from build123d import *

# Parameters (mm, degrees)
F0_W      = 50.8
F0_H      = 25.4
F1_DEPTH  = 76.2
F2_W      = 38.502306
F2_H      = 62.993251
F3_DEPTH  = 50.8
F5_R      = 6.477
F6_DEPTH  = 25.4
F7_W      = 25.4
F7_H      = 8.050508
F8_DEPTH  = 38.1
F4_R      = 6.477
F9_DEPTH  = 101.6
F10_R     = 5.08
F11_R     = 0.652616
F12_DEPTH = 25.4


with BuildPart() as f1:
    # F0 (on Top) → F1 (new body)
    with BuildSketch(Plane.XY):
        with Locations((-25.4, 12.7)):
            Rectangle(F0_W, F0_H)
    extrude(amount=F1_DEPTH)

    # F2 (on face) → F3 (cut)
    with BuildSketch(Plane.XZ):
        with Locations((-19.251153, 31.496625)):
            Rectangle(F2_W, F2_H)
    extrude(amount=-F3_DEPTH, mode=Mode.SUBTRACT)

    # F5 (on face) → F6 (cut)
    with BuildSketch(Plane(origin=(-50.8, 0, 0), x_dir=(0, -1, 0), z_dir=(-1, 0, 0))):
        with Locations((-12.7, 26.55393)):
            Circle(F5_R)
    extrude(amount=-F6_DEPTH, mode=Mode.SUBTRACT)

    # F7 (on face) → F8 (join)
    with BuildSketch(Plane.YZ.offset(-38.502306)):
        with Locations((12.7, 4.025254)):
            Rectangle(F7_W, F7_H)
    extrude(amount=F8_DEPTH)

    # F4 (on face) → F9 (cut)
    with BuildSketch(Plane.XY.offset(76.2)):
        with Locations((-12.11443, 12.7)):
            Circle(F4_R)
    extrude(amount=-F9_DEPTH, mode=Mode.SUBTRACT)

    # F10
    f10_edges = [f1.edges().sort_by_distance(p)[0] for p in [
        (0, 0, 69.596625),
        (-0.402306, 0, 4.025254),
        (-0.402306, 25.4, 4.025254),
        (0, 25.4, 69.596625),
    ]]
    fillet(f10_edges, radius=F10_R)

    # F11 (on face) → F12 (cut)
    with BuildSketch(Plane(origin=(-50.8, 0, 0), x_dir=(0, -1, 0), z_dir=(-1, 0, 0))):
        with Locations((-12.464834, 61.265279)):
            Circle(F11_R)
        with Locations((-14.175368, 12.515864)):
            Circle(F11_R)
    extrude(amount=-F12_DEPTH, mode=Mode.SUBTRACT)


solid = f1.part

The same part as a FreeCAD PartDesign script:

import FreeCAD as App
import Part
import Sketcher
from FreeCAD import Vector
Q = App.Units.Quantity


def edges_at(feature, points):
    """Names of the edges that pass closest to the given points."""
    edges = feature.Shape.Edges
    near = lambda p: min(range(len(edges)), key=lambda i: edges[i].distToShape(Part.Vertex(*p))[0])
    return sorted({f"Edge{near(p) + 1}" for p in points})

doc = App.newDocument("Part")
params = doc.addObject("Spreadsheet::Sheet", "Params")
for row, (alias, value) in enumerate([
    ("sketch1_width", "2 in"),
    ("sketch1_height", "1 in"),
    ("pad1_length", "3 in"),
    ("pocket1_length", "2 in"),
    ("sketch3_diameter", "0.51 in"),
    ("pocket2_length", "1 in"),
    ("sketch4_width", "1 in"),
    ("pad2_length", "1.5 in"),
    ("sketch5_diameter", "0.51 in"),
    ("pocket3_length", "4 in"),
    ("fillet_radius", "0.2 in"),
    ("pocket4_length", "1 in"),
], start=1):
    params.set(f"A{row}", alias)
    params.set(f"B{row}", "=" + value)
    params.setAlias(f"B{row}", alias)

body = doc.addObject("PartDesign::Body", "Body")

# Sketch on XY plane
sketch1 = body.newObject("Sketcher::SketchObject", "Sketch")
sketch1.AttachmentSupport = (doc.getObject("XY_Plane"), [""])
sketch1.MapMode = "FlatFace"
sketch1.addGeometry(Part.LineSegment(Vector(-51, 25, 0), Vector(-51, 0, 0)), False)
sketch1.addGeometry(Part.LineSegment(Vector(-51, 0, 0), Vector(0, 0, 0)), False)
sketch1.addGeometry(Part.LineSegment(Vector(0, 0, 0), Vector(0, 25, 0)), False)
sketch1.addGeometry(Part.LineSegment(Vector(0, 25, 0), Vector(-51, 25, 0)), False)
sketch1.addConstraint(Sketcher.Constraint("Coincident", 0, 2, 1, 1))
sketch1.addConstraint(Sketcher.Constraint("Coincident", 1, 2, 2, 1))
sketch1.addConstraint(Sketcher.Constraint("Coincident", 2, 2, 3, 1))
sketch1.addConstraint(Sketcher.Constraint("Coincident", 3, 2, 0, 1))
sketch1.addConstraint(Sketcher.Constraint("Vertical", 0))
sketch1.addConstraint(Sketcher.Constraint("Horizontal", 1))
sketch1.addConstraint(Sketcher.Constraint("Vertical", 2))
sketch1.addConstraint(Sketcher.Constraint("Horizontal", 3))
sketch1.addConstraint(Sketcher.Constraint("Coincident", 1, 2, -1, 1))
sketch1.addConstraint(Sketcher.Constraint("DistanceX", 1, 1, 1, 2, Q("2 in")))
sketch1.addConstraint(Sketcher.Constraint("DistanceY", 0, 2, 0, 1, Q("1 in")))
sketch1.setExpression("Constraints[9]", "Params.sketch1_width")
sketch1.setExpression("Constraints[10]", "Params.sketch1_height")
pad1 = body.newObject("PartDesign::Pad", "Pad")
pad1.Profile = sketch1
pad1.setExpression("Length", "Params.pad1_length")

# Sketch on XZ plane
sketch2 = body.newObject("Sketcher::SketchObject", "Sketch001")
sketch2.AttachmentSupport = (doc.getObject("XZ_Plane"), [""])
sketch2.MapMode = "FlatFace"
sketch2.addGeometry(Part.LineSegment(Vector(-39, 63, 0), Vector(-39, 0, 0)), False)
sketch2.addGeometry(Part.LineSegment(Vector(-39, 0, 0), Vector(0, 0, 0)), False)
sketch2.addGeometry(Part.LineSegment(Vector(0, 0, 0), Vector(0, 63, 0)), False)
sketch2.addGeometry(Part.LineSegment(Vector(0, 63, 0), Vector(-39, 63, 0)), False)
sketch2.addConstraint(Sketcher.Constraint("Coincident", 0, 2, 1, 1))
sketch2.addConstraint(Sketcher.Constraint("Coincident", 1, 2, 2, 1))
sketch2.addConstraint(Sketcher.Constraint("Coincident", 2, 2, 3, 1))
sketch2.addConstraint(Sketcher.Constraint("Coincident", 3, 2, 0, 1))
sketch2.addConstraint(Sketcher.Constraint("Vertical", 0))
sketch2.addConstraint(Sketcher.Constraint("Horizontal", 1))
sketch2.addConstraint(Sketcher.Constraint("Vertical", 2))
sketch2.addConstraint(Sketcher.Constraint("Horizontal", 3))
sketch2.addConstraint(Sketcher.Constraint("Coincident", 1, 2, -1, 1))
sketch2.addConstraint(Sketcher.Constraint("DistanceY", 0, 2, 0, 1, 62.993251))
sketch2.addConstraint(Sketcher.Constraint("DistanceX", 1, 1, 1, 2, 38.502306))
pocket1 = body.newObject("PartDesign::Pocket", "Pocket")
pocket1.Profile = sketch2
pocket1.setExpression("Length", "Params.pocket1_length")

# Sketch on YZ plane
sketch3 = body.newObject("Sketcher::SketchObject", "Sketch002")
sketch3.AttachmentSupport = (doc.getObject("YZ_Plane"), [""])
sketch3.MapMode = "FlatFace"
sketch3.AttachmentOffset = App.Placement(Vector(0, 0, -2 * 25.4), App.Rotation())
sketch3.addGeometry(Part.Circle(Vector(13, 27, 0), Vector(0, 0, 1), 6), False)
sketch3.addConstraint(Sketcher.Constraint("Diameter", 0, Q("0.51 in")))
sketch3.addConstraint(Sketcher.Constraint("DistanceX", -1, 1, 0, 3, Q("0.5 in")))
sketch3.addConstraint(Sketcher.Constraint("DistanceY", -1, 1, 0, 3, 26.55393))
sketch3.setExpression("Constraints[0]", "Params.sketch3_diameter")
pocket2 = body.newObject("PartDesign::Pocket", "Pocket001")
pocket2.Profile = sketch3
pocket2.setExpression("Length", "Params.pocket2_length")
pocket2.Reversed = True

# Sketch on YZ plane
sketch4 = body.newObject("Sketcher::SketchObject", "Sketch003")
sketch4.AttachmentSupport = (doc.getObject("YZ_Plane"), [""])
sketch4.MapMode = "FlatFace"
sketch4.AttachmentOffset = App.Placement(Vector(0, 0, -38.502306), App.Rotation())
sketch4.addGeometry(Part.LineSegment(Vector(0, 8, 0), Vector(0, 0, 0)), False)
sketch4.addGeometry(Part.LineSegment(Vector(0, 0, 0), Vector(25, 0, 0)), False)
sketch4.addGeometry(Part.LineSegment(Vector(25, 0, 0), Vector(25, 8, 0)), False)
sketch4.addGeometry(Part.LineSegment(Vector(25, 8, 0), Vector(0, 8, 0)), False)
sketch4.addConstraint(Sketcher.Constraint("Coincident", 0, 2, 1, 1))
sketch4.addConstraint(Sketcher.Constraint("Coincident", 1, 2, 2, 1))
sketch4.addConstraint(Sketcher.Constraint("Coincident", 2, 2, 3, 1))
sketch4.addConstraint(Sketcher.Constraint("Coincident", 3, 2, 0, 1))
sketch4.addConstraint(Sketcher.Constraint("Vertical", 0))
sketch4.addConstraint(Sketcher.Constraint("Horizontal", 1))
sketch4.addConstraint(Sketcher.Constraint("Vertical", 2))
sketch4.addConstraint(Sketcher.Constraint("Horizontal", 3))
sketch4.addConstraint(Sketcher.Constraint("Coincident", 0, 2, -1, 1))
sketch4.addConstraint(Sketcher.Constraint("DistanceX", 1, 1, 1, 2, Q("1 in")))
sketch4.addConstraint(Sketcher.Constraint("DistanceY", 0, 2, 0, 1, 8.050508))
sketch4.setExpression("Constraints[9]", "Params.sketch4_width")
pad2 = body.newObject("PartDesign::Pad", "Pad001")
pad2.Profile = sketch4
pad2.setExpression("Length", "Params.pad2_length")

# Sketch on XY plane
sketch5 = body.newObject("Sketcher::SketchObject", "Sketch004")
sketch5.AttachmentSupport = (doc.getObject("XY_Plane"), [""])
sketch5.MapMode = "FlatFace"
sketch5.AttachmentOffset = App.Placement(Vector(0, 0, 3 * 25.4), App.Rotation())
sketch5.addGeometry(Part.Circle(Vector(-12, 13, 0), Vector(0, 0, 1), 6), False)
sketch5.addConstraint(Sketcher.Constraint("Diameter", 0, Q("0.51 in")))
sketch5.addConstraint(Sketcher.Constraint("DistanceY", -1, 1, 0, 3, Q("0.5 in")))
sketch5.addConstraint(Sketcher.Constraint("DistanceX", 0, 3, -1, 1, 12.11443))
sketch5.setExpression("Constraints[0]", "Params.sketch5_diameter")
pocket3 = body.newObject("PartDesign::Pocket", "Pocket002")
pocket3.Profile = sketch5
pocket3.setExpression("Length", "Params.pocket3_length")
doc.recompute()

fillet = body.newObject("PartDesign::Fillet", "Fillet")
fillet.Base = (pocket3, edges_at(pocket3, [
    (0, 0, 69.597),
    (-0.402, 0, 4.025),
    (-0.402, 25.4, 4.025),
    (0, 25.4, 69.597),
]))
fillet.setExpression("Radius", "Params.fillet_radius")

# Sketch on YZ plane
sketch6 = body.newObject("Sketcher::SketchObject", "Sketch005")
sketch6.AttachmentSupport = (doc.getObject("YZ_Plane"), [""])
sketch6.MapMode = "FlatFace"
sketch6.AttachmentOffset = App.Placement(Vector(0, 0, -2 * 25.4), App.Rotation())
sketch6.addGeometry(Part.Circle(Vector(12.5, 61.3, 0), Vector(0, 0, 1), 0.7), False)
sketch6.addGeometry(Part.Circle(Vector(14.2, 12.5, 0), Vector(0, 0, 1), 0.7), False)
sketch6.addConstraint(Sketcher.Constraint("Equal", 0, 1))
sketch6.addConstraint(Sketcher.Constraint("Diameter", 0, 1.305232))
sketch6.addConstraint(Sketcher.Constraint("DistanceY", -1, 1, 0, 3, 61.265279))
sketch6.addConstraint(Sketcher.Constraint("DistanceX", -1, 1, 1, 3, 14.175368))
sketch6.addConstraint(Sketcher.Constraint("DistanceX", -1, 1, 0, 3, 12.464834))
sketch6.addConstraint(Sketcher.Constraint("DistanceY", -1, 1, 1, 3, 12.515864))
pocket4 = body.newObject("PartDesign::Pocket", "Pocket003")
pocket4.Profile = sketch6
pocket4.setExpression("Length", "Params.pocket4_length")
pocket4.Reversed = True

doc.recompute()
